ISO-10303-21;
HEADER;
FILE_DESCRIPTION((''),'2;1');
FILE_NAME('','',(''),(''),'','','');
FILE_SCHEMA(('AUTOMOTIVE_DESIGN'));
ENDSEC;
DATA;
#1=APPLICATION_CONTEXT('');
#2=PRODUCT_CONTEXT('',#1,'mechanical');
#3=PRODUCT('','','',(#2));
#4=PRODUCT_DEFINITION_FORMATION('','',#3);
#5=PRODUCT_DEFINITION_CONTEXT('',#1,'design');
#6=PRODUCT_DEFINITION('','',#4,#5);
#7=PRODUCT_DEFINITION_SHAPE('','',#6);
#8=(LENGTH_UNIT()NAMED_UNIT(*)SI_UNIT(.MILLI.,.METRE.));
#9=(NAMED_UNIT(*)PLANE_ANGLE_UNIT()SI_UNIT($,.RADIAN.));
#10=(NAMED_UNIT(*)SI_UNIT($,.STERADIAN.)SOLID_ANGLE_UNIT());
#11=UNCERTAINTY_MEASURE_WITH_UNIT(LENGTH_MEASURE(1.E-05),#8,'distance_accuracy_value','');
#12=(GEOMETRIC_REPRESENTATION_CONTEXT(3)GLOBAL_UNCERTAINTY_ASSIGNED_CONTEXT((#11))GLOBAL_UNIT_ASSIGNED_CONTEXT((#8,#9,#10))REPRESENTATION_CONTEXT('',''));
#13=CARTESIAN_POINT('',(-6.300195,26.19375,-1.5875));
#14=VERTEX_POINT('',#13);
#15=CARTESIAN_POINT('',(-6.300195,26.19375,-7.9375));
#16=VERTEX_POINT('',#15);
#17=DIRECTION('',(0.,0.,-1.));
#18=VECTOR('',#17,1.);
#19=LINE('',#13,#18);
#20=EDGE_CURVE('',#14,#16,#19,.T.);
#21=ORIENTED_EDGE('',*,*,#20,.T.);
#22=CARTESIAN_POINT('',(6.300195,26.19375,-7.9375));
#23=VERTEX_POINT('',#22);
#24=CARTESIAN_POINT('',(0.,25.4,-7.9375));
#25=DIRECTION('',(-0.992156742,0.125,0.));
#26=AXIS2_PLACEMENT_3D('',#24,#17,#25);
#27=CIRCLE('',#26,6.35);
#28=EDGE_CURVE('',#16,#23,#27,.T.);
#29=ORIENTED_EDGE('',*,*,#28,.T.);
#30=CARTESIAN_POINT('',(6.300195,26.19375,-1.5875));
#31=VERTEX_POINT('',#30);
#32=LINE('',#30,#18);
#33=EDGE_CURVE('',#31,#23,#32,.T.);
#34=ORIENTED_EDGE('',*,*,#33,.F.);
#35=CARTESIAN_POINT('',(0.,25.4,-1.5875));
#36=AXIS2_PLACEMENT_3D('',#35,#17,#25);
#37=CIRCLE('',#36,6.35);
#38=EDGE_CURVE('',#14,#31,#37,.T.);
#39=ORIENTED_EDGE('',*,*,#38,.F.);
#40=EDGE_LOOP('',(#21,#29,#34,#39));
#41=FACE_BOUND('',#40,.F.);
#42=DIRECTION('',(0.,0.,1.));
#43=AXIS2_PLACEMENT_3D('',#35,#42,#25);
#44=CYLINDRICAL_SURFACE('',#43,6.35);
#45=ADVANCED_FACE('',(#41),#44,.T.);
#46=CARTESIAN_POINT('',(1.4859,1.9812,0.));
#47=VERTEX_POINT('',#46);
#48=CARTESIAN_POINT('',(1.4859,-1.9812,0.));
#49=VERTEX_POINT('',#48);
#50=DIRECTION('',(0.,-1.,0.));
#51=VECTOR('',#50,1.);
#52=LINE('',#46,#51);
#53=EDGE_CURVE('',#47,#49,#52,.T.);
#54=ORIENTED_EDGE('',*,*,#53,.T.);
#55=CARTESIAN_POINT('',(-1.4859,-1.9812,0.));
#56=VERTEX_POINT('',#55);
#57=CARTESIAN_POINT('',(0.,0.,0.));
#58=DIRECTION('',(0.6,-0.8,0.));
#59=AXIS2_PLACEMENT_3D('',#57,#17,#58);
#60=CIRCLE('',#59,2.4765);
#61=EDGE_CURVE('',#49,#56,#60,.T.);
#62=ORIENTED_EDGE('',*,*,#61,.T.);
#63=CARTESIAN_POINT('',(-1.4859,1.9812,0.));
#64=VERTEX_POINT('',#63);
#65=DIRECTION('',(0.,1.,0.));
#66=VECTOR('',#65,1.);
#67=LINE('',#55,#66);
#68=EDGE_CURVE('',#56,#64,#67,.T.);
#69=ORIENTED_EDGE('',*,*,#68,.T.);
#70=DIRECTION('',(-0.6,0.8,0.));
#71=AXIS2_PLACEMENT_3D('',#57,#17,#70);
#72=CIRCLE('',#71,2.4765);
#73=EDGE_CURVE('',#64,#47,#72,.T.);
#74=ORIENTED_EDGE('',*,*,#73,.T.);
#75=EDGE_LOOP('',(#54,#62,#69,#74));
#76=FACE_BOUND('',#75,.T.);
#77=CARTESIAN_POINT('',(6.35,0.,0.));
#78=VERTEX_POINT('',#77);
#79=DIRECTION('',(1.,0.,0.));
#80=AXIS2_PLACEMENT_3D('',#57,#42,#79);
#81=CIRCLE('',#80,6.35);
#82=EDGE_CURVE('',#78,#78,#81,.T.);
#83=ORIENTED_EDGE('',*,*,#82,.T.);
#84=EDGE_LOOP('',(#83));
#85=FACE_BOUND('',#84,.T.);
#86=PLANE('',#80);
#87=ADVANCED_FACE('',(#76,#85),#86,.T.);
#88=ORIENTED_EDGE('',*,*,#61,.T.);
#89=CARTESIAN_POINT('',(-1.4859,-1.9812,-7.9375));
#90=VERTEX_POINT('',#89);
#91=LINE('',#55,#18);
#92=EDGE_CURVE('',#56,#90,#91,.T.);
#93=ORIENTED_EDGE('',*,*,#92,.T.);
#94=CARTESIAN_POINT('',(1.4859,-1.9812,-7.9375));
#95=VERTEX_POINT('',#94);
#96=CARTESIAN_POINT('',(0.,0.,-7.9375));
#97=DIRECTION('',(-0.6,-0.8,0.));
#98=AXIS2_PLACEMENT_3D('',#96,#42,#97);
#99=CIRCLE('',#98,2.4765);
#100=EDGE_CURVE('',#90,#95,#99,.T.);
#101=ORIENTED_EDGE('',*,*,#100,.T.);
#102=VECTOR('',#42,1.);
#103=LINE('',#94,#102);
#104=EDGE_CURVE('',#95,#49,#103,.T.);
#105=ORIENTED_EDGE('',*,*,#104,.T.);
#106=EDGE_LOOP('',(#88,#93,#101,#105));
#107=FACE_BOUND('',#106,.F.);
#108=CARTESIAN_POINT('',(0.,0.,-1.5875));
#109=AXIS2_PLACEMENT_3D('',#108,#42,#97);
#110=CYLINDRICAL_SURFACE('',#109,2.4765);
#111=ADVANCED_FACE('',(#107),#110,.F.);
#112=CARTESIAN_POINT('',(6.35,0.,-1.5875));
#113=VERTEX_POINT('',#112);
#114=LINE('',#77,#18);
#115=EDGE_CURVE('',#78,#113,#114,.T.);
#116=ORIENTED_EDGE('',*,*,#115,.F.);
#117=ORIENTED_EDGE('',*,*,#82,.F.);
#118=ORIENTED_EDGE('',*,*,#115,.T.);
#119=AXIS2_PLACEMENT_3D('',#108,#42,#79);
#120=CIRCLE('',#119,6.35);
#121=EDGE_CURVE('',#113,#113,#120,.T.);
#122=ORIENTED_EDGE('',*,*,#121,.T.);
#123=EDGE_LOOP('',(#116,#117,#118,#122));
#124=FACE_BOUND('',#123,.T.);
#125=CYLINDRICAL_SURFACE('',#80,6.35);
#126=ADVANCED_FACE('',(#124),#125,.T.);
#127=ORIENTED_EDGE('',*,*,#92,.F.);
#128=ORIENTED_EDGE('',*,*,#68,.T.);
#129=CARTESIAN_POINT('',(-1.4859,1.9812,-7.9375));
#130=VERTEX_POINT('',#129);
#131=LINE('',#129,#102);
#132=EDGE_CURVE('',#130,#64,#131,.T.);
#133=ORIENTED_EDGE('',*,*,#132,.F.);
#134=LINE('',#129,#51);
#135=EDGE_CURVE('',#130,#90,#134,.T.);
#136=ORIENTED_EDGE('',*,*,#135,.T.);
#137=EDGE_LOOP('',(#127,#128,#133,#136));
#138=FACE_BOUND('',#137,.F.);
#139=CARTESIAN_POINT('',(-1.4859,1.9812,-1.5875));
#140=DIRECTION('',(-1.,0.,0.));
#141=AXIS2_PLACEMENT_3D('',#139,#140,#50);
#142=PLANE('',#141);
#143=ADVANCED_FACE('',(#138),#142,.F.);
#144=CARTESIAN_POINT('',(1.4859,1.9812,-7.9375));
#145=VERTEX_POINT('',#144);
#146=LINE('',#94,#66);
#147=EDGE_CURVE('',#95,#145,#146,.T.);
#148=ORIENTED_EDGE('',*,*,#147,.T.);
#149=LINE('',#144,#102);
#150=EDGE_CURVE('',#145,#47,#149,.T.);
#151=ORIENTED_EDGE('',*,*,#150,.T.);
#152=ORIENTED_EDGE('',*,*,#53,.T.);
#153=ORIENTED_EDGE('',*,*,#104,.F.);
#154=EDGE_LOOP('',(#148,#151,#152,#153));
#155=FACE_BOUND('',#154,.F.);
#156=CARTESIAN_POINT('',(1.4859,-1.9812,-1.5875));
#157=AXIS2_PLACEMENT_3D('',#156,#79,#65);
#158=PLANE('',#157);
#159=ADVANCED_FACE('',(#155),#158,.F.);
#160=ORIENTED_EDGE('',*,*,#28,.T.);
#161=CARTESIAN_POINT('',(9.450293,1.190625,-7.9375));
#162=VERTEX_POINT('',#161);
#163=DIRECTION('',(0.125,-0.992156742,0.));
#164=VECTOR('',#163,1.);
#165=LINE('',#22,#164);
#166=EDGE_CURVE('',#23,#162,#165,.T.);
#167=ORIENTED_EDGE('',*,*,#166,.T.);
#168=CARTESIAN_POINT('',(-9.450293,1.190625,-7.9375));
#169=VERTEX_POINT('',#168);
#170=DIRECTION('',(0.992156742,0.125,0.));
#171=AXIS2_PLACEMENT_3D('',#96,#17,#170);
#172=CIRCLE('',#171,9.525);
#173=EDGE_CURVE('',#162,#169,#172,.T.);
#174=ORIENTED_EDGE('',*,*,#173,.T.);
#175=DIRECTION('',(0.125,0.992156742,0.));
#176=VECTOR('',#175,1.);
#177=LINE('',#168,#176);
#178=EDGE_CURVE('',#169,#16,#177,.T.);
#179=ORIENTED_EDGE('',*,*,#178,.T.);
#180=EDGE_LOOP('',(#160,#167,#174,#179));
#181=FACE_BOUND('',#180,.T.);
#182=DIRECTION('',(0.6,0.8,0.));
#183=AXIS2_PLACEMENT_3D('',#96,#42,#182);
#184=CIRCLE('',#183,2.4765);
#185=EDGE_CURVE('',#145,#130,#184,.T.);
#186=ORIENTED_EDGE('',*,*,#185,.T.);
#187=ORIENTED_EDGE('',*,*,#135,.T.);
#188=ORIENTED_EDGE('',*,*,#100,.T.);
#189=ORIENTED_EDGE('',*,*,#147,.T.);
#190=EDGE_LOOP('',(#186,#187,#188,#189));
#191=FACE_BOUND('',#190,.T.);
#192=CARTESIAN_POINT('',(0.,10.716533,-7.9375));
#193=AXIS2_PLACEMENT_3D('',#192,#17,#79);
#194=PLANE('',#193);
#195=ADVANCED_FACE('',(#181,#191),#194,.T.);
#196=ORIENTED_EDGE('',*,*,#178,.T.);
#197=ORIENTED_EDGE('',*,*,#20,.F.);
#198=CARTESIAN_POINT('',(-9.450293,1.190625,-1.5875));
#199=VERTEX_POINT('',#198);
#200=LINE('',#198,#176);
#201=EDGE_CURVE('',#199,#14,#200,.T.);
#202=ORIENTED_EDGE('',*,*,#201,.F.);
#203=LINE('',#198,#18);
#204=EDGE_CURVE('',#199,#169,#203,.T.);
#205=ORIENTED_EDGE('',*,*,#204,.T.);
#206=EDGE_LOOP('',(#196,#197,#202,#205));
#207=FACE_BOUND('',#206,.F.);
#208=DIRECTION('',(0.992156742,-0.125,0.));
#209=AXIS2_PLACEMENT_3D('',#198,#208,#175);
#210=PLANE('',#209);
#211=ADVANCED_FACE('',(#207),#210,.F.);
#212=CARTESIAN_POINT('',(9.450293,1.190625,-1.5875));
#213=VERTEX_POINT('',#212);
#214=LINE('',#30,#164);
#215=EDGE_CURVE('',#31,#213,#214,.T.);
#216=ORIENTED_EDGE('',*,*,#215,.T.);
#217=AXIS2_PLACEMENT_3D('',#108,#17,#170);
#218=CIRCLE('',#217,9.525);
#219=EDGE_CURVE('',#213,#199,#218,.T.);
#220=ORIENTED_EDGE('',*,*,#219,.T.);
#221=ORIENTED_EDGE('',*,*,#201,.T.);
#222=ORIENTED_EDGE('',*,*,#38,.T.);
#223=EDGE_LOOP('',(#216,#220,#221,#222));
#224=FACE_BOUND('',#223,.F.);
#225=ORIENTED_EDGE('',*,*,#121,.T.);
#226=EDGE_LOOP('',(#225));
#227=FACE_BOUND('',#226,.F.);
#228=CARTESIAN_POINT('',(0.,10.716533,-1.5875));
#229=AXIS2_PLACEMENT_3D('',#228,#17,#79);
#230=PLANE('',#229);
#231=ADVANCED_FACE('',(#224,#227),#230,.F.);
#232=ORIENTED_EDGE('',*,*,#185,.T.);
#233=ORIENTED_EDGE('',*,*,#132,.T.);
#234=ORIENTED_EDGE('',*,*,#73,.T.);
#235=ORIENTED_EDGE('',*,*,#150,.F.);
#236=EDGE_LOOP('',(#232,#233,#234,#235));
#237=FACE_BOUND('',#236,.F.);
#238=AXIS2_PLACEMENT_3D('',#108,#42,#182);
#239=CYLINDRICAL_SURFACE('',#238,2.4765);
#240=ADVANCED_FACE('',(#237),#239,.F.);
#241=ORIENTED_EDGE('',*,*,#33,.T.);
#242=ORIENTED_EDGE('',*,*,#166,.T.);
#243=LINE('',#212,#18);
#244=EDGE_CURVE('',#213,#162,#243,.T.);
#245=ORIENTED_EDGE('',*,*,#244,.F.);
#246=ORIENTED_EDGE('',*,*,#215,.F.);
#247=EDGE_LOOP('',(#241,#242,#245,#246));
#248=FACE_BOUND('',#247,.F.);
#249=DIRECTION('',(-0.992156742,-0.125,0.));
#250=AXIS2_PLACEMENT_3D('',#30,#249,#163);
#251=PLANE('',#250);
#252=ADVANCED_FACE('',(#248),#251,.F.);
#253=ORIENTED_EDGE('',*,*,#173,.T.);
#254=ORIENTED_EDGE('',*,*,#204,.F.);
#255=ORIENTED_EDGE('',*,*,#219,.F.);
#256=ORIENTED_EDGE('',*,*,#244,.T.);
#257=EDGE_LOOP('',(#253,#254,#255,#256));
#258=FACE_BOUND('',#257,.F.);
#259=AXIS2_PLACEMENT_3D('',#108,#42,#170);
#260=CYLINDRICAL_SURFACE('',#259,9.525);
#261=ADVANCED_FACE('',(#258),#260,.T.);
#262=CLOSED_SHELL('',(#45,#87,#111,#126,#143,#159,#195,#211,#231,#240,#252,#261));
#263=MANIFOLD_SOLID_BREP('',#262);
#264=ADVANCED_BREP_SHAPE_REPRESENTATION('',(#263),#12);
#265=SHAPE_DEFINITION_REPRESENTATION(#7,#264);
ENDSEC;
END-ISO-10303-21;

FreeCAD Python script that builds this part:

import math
import FreeCAD as App
import Part
import Sketcher
Q = App.Units.Quantity

doc = App.newDocument("Part")
params = doc.addObject("Spreadsheet::Sheet", "Params")
for row, (alias, value) in enumerate([
    ("sketch1_diameter", "0.5 in"),
    ("sketch1_height", "0.156 in"),
    ("pad1_length", "0.0625 in"),
    ("sketch2_radius", "0.25 in"),
    ("sketch2_radius2", "0.375 in"),
    ("sketch2_height", "0.156 in"),
    ("pad2_length", "0.25 in"),
], start=1):
    params.set(f"A{row}", alias)
    params.set(f"B{row}", "=" + value)
    params.setAlias(f"B{row}", alias)

body = doc.addObject("PartDesign::Body", "Body")

sketch1 = doc.addObject("Sketcher::SketchObject", "Sketch")
body.addObject(sketch1)
sketch1.AttachmentSupport = (doc.XY_Plane, [""])
sketch1.MapMode = "FlatFace"
sketch1.addGeometry([
    Part.Circle(App.Vector(0, 0, 0), App.Vector(0, 0, 1), 6.3),
    Part.LineSegment(App.Vector(1.5, 2, 0), App.Vector(1.5, -2, 0)),
    Part.ArcOfCircle(Part.Circle(App.Vector(0, 0, 0), App.Vector(0, 0, 1), 2.5), math.radians(-127), math.radians(-53)),
    Part.LineSegment(App.Vector(-1.5, -2, 0), App.Vector(-1.5, 2, 0)),
    Part.ArcOfCircle(Part.Circle(App.Vector(0, 0, 0), App.Vector(0, 0, 1), 2.5), math.radians(53), math.radians(127)),
], False)
sketch1.addConstraint([
    Sketcher.Constraint("Coincident", 1, 2, 2, 2),
    Sketcher.Constraint("Coincident", 2, 1, 3, 1),
    Sketcher.Constraint("Coincident", 3, 2, 4, 2),
    Sketcher.Constraint("Coincident", 4, 1, 1, 1),
    Sketcher.Constraint("Vertical", 1),
    Sketcher.Constraint("Vertical", 3),
    Sketcher.Constraint("Coincident", 0, 3, -1, 1),
    Sketcher.Constraint("Coincident", 2, 3, -1, 1),
    Sketcher.Constraint("Coincident", 4, 3, -1, 1),
    Sketcher.Constraint("Equal", 2, 4),
    Sketcher.Constraint("Horizontal", 1, 2, 2, 1),
    Sketcher.Constraint("Diameter", 0, Q("0.5 in")),
    Sketcher.Constraint("Radius", 2, Q("0.0975 in")),
    Sketcher.Constraint("DistanceY", 1, 2, 1, 1, Q("0.156 in")),
])
sketch1.setExpression("Constraints[11]", "Params.sketch1_diameter")
sketch1.setExpression("Constraints[13]", "Params.sketch1_height")
pad1 = doc.addObject("PartDesign::Pad", "Pad")
body.addObject(pad1)
pad1.Profile = sketch1
pad1.setExpression("Length", "Params.pad1_length")
pad1.Reversed = True

sketch2 = doc.addObject("Sketcher::SketchObject", "Sketch001")
body.addObject(sketch2)
sketch2.AttachmentSupport = (doc.XY_Plane, [""])
sketch2.MapMode = "FlatFace"
sketch2.AttachmentOffset = App.Placement(App.Vector(0, 0, -0.0625 * 25.4), App.Rotation())
sketch2.addGeometry([
    Part.LineSegment(App.Vector(6.3, 26.2, 0), App.Vector(9.5, 1.2, 0)),
    Part.ArcOfCircle(Part.Circle(App.Vector(0, 0, 0), App.Vector(0, 0, 1), 9.5), math.radians(173), math.radians(367)),
    Part.LineSegment(App.Vector(-9.5, 1.2, 0), App.Vector(-6.3, 26.2, 0)),
    Part.ArcOfCircle(Part.Circle(App.Vector(0, 25.4, 0), App.Vector(0, 0, 1), 6.3), math.radians(7), math.radians(173)),
    Part.LineSegment(App.Vector(-1.5, 2, 0), App.Vector(-1.5, -2, 0)),
    Part.ArcOfCircle(Part.Circle(App.Vector(0, 0, 0), App.Vector(0, 0, 1), 2.5), math.radians(-127), math.radians(-53)),
    Part.LineSegment(App.Vector(1.5, -2, 0), App.Vector(1.5, 2, 0)),
    Part.ArcOfCircle(Part.Circle(App.Vector(0, 0, 0), App.Vector(0, 0, 1), 2.5), math.radians(53), math.radians(127)),
], False)
sketch2.addConstraint([
    Sketcher.Constraint("Tangent", 0, 2, 1, 2),
    Sketcher.Constraint("Tangent", 1, 1, 2, 1),
    Sketcher.Constraint("Tangent", 2, 2, 3, 2),
    Sketcher.Constraint("Tangent", 3, 1, 0, 1),
    Sketcher.Constraint("Coincident", 4, 2, 5, 1),
    Sketcher.Constraint("Coincident", 5, 2, 6, 1),
    Sketcher.Constraint("Coincident", 6, 2, 7, 1),
    Sketcher.Constraint("Coincident", 7, 2, 4, 1),
    Sketcher.Constraint("Vertical", 4),
    Sketcher.Constraint("Vertical", 6),
    Sketcher.Constraint("Coincident", 1, 3, -1, 1),
    Sketcher.Constraint("Coincident", 5, 3, -1, 1),
    Sketcher.Constraint("Coincident", 7, 3, -1, 1),
    Sketcher.Constraint("Equal", 5, 7),
    Sketcher.Constraint("PointOnObject", 3, 3, -2),
    Sketcher.Constraint("Horizontal", 4, 2, 5, 2),
    Sketcher.Constraint("Radius", 3, Q("0.25 in")),
    Sketcher.Constraint("DistanceY", -1, 1, 3, 3, Q("1 in")),
    Sketcher.Constraint("Radius", 1, Q("0.375 in")),
    Sketcher.Constraint("Radius", 5, Q("0.0975 in")),
    Sketcher.Constraint("DistanceY", 4, 2, 4, 1, Q("0.156 in")),
])
sketch2.setExpression("Constraints[16]", "Params.sketch2_radius")
sketch2.setExpression("Constraints[18]", "Params.sketch2_radius2")
sketch2.setExpression("Constraints[20]", "Params.sketch2_height")
pad2 = doc.addObject("PartDesign::Pad", "Pad001")
body.addObject(pad2)
pad2.Profile = sketch2
pad2.setExpression("Length", "Params.pad2_length")
pad2.Reversed = True

doc.recompute()
